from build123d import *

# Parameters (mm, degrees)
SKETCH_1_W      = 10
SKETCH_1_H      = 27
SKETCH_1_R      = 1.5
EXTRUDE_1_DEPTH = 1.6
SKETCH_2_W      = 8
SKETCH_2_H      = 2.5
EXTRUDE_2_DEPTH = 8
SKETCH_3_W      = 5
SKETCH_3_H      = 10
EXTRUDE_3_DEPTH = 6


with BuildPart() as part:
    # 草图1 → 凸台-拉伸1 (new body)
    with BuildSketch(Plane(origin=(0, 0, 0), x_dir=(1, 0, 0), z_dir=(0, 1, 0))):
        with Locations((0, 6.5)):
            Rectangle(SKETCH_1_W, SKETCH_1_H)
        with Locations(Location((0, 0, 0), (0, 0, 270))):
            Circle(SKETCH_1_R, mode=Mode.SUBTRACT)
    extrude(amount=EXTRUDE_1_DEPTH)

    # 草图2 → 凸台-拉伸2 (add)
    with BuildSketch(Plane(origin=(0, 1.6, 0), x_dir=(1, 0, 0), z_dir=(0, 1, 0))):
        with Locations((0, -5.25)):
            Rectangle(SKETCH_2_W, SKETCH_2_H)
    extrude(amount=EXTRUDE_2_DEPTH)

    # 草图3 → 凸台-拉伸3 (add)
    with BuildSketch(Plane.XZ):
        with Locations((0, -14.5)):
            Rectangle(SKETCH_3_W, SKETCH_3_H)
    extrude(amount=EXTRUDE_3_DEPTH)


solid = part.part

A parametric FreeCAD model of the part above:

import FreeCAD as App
import Part
import Sketcher

V = App.Vector
Q = App.Units.Quantity

doc = App.newDocument("Part")
body = doc.addObject("PartDesign::Body", "Body")

sketch1 = body.newObject("Sketcher::SketchObject", "Sketch")
sketch1.AttachmentSupport = (doc.getObject("XZ_Plane"), [""])
sketch1.MapMode = "FlatFace"
sketch1.addGeometry([
    Part.LineSegment(V(-5, -20, 0), V(-5, 7, 0)),
    Part.LineSegment(V(-5, 7, 0), V(5, 7, 0)),
    Part.LineSegment(V(5, 7, 0), V(5, -20, 0)),
    Part.LineSegment(V(5, -20, 0), V(-5, -20, 0)),
    Part.Circle(V(0, 0, 0), V(0, 0, 1), 1.5),
], False)
sketch1.addConstraint([
    Sketcher.Constraint("Coincident", 0, 2, 1, 1),
    Sketcher.Constraint("Coincident", 1, 2, 2, 1),
    Sketcher.Constraint("Coincident", 2, 2, 3, 1),
    Sketcher.Constraint("Coincident", 3, 2, 0, 1),
    Sketcher.Constraint("Vertical", 0),
    Sketcher.Constraint("Horizontal", 1),
    Sketcher.Constraint("Vertical", 2),
    Sketcher.Constraint("Horizontal", 3),
    Sketcher.Constraint("Coincident", 4, 3, -1, 1),
    Sketcher.Constraint("Diameter", 4, Q("3 mm")),
    Sketcher.Constraint("DistanceX", 1, 1, 1, 2, Q("10 mm")),
    Sketcher.Constraint("DistanceY", 0, 1, 0, 2, Q("27 mm")),
    Sketcher.Constraint("DistanceX", 0, 2, -1, 1, Q("5 mm")),
    Sketcher.Constraint("DistanceY", -1, 1, 0, 2, Q("7 mm")),
])
pad1 = body.newObject("PartDesign::Pad", "Pad")
pad1.Profile = sketch1
pad1.Length = 1.6
pad1.Reversed = True

sketch2 = body.newObject("Sketcher::SketchObject", "Sketch001")
sketch2.AttachmentSupport = (doc.getObject("XZ_Plane"), [""])
sketch2.MapMode = "FlatFace"
sketch2.AttachmentOffset = App.Placement(V(0, 0, -1.6), App.Rotation())
sketch2.addGeometry([
    Part.LineSegment(V(-4, 4, 0), V(-4, 6.5, 0)),
    Part.LineSegment(V(-4, 6.5, 0), V(4, 6.5, 0)),
    Part.LineSegment(V(4, 6.5, 0), V(4, 4, 0)),
    Part.LineSegment(V(4, 4, 0), V(-4, 4, 0)),
], False)
sketch2.addConstraint([
    Sketcher.Constraint("Coincident", 0, 2, 1, 1),
    Sketcher.Constraint("Coincident", 1, 2, 2, 1),
    Sketcher.Constraint("Coincident", 2, 2, 3, 1),
    Sketcher.Constraint("Coincident", 3, 2, 0, 1),
    Sketcher.Constraint("Vertical", 0),
    Sketcher.Constraint("Horizontal", 1),
    Sketcher.Constraint("Vertical", 2),
    Sketcher.Constraint("Horizontal", 3),
    Sketcher.Constraint("DistanceX", 1, 1, 1, 2, Q("8 mm")),
    Sketcher.Constraint("DistanceY", 0, 1, 0, 2, Q("2.5 mm")),
    Sketcher.Constraint("DistanceX", 0, 2, -1, 1, Q("4 mm")),
    Sketcher.Constraint("DistanceY", -1, 1, 2, 2, Q("4 mm")),
])
pad2 = body.newObject("PartDesign::Pad", "Pad001")
pad2.Profile = sketch2
pad2.Length = 8
pad2.Reversed = True

sketch3 = body.newObject("Sketcher::SketchObject", "Sketch002")
sketch3.AttachmentSupport = (doc.getObject("XZ_Plane"), [""])
sketch3.MapMode = "FlatFace"
sketch3.addGeometry([
    Part.LineSegment(V(-2, -10, 0), V(-2, -20, 0)),
    Part.LineSegment(V(-2, -20, 0), V(2, -20, 0)),
    Part.LineSegment(V(2, -20, 0), V(2, -10, 0)),
    Part.LineSegment(V(2, -10, 0), V(-2, -10, 0)),
], False)
sketch3.addConstraint([
    Sketcher.Constraint("Coincident", 0, 2, 1, 1),
    Sketcher.Constraint("Coincident", 1, 2, 2, 1),
    Sketcher.Constraint("Coincident", 2, 2, 3, 1),
    Sketcher.Constraint("Coincident", 3, 2, 0, 1),
    Sketcher.Constraint("Vertical", 0),
    Sketcher.Constraint("Horizontal", 1),
    Sketcher.Constraint("Vertical", 2),
    Sketcher.Constraint("Horizontal", 3),
    Sketcher.Constraint("DistanceX", 1, 1, 1, 2, Q("5 mm")),
    Sketcher.Constraint("DistanceY", 0, 2, 0, 1, Q("10 mm")),
    Sketcher.Constraint("DistanceX", 0, 2, -1, 1, Q("2.5 mm")),
    Sketcher.Constraint("DistanceY", 0, 2, -1, 1, Q("19.5 mm")),
])
pad3 = body.newObject("PartDesign::Pad", "Pad002")
pad3.Profile = sketch3
pad3.Length = 6

doc.recompute()
